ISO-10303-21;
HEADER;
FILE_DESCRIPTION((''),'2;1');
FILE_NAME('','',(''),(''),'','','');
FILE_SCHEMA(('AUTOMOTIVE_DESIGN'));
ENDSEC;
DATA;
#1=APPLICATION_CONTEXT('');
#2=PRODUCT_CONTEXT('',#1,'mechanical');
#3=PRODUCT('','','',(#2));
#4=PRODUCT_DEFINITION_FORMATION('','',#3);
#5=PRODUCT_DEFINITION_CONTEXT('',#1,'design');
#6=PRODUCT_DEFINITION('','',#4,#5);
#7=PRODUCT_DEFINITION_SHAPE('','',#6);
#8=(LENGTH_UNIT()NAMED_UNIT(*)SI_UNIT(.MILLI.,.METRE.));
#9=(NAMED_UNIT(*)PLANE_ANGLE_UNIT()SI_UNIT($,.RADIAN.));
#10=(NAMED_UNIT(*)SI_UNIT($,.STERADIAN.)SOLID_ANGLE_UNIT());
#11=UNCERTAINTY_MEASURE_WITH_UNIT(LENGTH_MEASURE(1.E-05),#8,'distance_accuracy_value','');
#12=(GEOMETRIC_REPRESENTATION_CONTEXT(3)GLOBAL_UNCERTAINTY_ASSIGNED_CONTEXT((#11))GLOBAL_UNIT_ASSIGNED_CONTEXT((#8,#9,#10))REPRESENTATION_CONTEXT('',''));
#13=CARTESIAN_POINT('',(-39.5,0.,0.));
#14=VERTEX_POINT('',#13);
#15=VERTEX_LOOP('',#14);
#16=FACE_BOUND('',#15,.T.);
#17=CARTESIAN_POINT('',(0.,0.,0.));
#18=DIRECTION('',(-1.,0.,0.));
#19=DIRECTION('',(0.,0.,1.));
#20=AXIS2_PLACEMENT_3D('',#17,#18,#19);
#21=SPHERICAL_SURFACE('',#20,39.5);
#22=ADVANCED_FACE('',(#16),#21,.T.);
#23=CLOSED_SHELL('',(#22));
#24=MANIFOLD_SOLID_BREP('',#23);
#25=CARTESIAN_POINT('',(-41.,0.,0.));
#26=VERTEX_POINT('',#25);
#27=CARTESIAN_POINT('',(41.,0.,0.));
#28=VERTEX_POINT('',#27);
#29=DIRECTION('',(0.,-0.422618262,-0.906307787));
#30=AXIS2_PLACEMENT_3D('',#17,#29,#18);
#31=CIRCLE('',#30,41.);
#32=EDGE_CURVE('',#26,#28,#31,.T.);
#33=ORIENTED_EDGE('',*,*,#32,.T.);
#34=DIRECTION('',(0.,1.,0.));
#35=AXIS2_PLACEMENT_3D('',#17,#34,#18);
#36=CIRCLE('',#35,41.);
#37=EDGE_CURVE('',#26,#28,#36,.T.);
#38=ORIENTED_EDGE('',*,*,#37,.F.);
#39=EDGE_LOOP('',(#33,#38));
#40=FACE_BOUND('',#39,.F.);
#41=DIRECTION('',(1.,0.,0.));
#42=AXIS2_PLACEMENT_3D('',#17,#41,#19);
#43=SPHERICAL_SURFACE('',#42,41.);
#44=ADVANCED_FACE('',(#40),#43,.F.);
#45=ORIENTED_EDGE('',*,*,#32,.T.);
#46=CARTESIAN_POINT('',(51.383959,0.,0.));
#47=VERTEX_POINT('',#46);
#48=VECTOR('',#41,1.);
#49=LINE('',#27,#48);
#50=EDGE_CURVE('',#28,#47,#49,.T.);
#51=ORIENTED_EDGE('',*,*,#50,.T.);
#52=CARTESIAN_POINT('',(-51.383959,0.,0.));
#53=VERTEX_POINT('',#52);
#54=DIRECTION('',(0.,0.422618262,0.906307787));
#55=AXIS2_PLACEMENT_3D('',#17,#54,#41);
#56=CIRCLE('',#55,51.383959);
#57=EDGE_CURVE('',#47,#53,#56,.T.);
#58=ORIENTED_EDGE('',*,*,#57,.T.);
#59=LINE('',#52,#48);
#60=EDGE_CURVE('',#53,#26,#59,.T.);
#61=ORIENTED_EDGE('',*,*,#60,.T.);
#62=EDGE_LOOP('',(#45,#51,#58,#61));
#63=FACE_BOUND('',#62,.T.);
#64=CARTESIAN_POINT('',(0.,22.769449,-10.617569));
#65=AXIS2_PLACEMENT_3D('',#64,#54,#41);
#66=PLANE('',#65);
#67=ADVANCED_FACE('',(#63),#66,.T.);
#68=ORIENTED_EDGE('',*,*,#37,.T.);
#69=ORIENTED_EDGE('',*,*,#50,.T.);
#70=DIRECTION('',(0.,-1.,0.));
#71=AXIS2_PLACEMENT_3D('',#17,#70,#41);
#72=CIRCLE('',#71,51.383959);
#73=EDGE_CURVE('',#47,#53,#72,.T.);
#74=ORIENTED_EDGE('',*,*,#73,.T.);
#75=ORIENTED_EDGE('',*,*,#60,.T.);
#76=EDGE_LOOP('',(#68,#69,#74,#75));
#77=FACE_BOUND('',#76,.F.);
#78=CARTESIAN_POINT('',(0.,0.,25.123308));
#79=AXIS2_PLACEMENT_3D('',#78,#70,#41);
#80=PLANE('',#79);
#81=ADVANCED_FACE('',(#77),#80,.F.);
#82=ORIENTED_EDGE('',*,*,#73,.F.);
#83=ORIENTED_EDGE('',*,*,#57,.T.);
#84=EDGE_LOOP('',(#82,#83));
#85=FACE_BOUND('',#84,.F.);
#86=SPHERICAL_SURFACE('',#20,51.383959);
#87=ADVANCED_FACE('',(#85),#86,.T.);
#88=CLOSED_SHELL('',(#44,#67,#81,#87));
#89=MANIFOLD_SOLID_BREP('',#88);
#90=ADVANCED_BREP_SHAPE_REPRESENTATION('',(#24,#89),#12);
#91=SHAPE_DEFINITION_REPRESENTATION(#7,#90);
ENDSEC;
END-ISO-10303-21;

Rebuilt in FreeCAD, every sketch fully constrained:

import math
import FreeCAD as App
import Part
import Sketcher
from FreeCAD import Vector

doc = App.newDocument("Part")
body = doc.addObject("PartDesign::Body", "Body")

sketch1 = doc.addObject("Sketcher::SketchObject", "Sketch")
body.addObject(sketch1)
sketch1.AttachmentSupport = (doc.XZ_Plane, [""])
sketch1.MapMode = "FlatFace"
sketch1.addGeometry([
    Part.LineSegment(Vector(41, 0, 0), Vector(51, 0, 0)),
    Part.ArcOfCircle(Part.Circle(Vector(0, 0, 0), Vector(0, 0, 1), 51), math.radians(0), math.radians(180)),
    Part.LineSegment(Vector(-51, 0, 0), Vector(-41, 0, 0)),
    Part.ArcOfCircle(Part.Circle(Vector(0, 0, 0), Vector(0, 0, 1), 41), math.radians(0), math.radians(180)),
], False)
sketch1.addConstraint([
    Sketcher.Constraint("Coincident", 0, 2, 1, 1),
    Sketcher.Constraint("Coincident", 1, 2, 2, 1),
    Sketcher.Constraint("Coincident", 2, 2, 3, 2),
    Sketcher.Constraint("Coincident", 3, 1, 0, 1),
    Sketcher.Constraint("Horizontal", 0),
    Sketcher.Constraint("Horizontal", 2),
    Sketcher.Constraint("Coincident", 1, 3, -1, 1),
    Sketcher.Constraint("Coincident", 3, 3, -1, 1),
    Sketcher.Constraint("PointOnObject", 0, 2, -1),
    Sketcher.Constraint("PointOnObject", 1, 2, -1),
    Sketcher.Constraint("Radius", 3, 41.0),
    Sketcher.Constraint("Radius", 1, 51.383959),
])
revolution = doc.addObject("PartDesign::Revolution", "Revolution")
body.addObject(revolution)
revolution.Profile = sketch1
revolution.ReferenceAxis = (sketch1, ["H_Axis"])
revolution.Angle = 245
body2 = doc.addObject("PartDesign::Body", "Body001")

sketch2 = doc.addObject("Sketcher::SketchObject", "Sketch001")
body2.addObject(sketch2)
sketch2.AttachmentSupport = (doc.getObject("XZ_Plane001"), [""])
sketch2.MapMode = "FlatFace"
sketch2.addGeometry([
    Part.LineSegment(Vector(-40, 0, 0), Vector(40, 0, 0)),
    Part.ArcOfCircle(Part.Circle(Vector(0, 0, 0), Vector(0, 0, 1), 40), math.radians(0), math.radians(180)),
], False)
sketch2.addConstraint([
    Sketcher.Constraint("Coincident", 0, 1, 1, 2),
    Sketcher.Constraint("Coincident", 1, 1, 0, 2),
    Sketcher.Constraint("Horizontal", 0),
    Sketcher.Constraint("Coincident", 1, 3, -1, 1),
    Sketcher.Constraint("PointOnObject", 0, 1, -1),
    Sketcher.Constraint("Radius", 1, 39.5),
])
revolution2 = doc.addObject("PartDesign::Revolution", "Revolution001")
body2.addObject(revolution2)
revolution2.Profile = sketch2
revolution2.ReferenceAxis = (sketch2, ["H_Axis"])
revolution2.Angle = 360

doc.recompute()
